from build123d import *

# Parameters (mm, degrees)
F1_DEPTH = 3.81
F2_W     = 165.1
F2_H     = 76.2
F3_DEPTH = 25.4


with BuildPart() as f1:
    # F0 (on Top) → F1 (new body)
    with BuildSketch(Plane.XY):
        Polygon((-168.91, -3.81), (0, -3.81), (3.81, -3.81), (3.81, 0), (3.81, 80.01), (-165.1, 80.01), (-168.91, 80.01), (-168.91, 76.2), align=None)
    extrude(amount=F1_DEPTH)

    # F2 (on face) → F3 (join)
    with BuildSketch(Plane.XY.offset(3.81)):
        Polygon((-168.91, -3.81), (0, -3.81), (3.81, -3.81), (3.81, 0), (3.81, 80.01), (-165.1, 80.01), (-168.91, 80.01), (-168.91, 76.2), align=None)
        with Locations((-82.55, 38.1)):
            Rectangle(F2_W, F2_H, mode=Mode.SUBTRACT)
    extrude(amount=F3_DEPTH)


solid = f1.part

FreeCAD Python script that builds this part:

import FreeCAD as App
import Part
import Sketcher
Q = App.Units.Quantity

doc = App.newDocument("Part")
body = doc.addObject("PartDesign::Body", "Body")

# Sketch on XY plane
sketch1 = doc.addObject("Sketcher::SketchObject", "Sketch")
body.addObject(sketch1)
sketch1.AttachmentSupport = (doc.XY_Plane, [""])
sketch1.MapMode = "FlatFace"
sketch1.addGeometry(Part.LineSegment(App.Vector(-168.91, -3.81, 0), App.Vector(3.81, -3.81, 0)), False)
sketch1.addGeometry(Part.LineSegment(App.Vector(3.81, -3.81, 0), App.Vector(3.81, 80.01, 0)), False)
sketch1.addGeometry(Part.LineSegment(App.Vector(3.81, 80.01, 0), App.Vector(-168.91, 80.01, 0)), False)
sketch1.addGeometry(Part.LineSegment(App.Vector(-168.91, 80.01, 0), App.Vector(-168.91, -3.81, 0)), False)
sketch1.addConstraint(Sketcher.Constraint("Coincident", 0, 2, 1, 1))
sketch1.addConstraint(Sketcher.Constraint("Coincident", 1, 2, 2, 1))
sketch1.addConstraint(Sketcher.Constraint("Coincident", 2, 2, 3, 1))
sketch1.addConstraint(Sketcher.Constraint("Coincident", 3, 2, 0, 1))
sketch1.addConstraint(Sketcher.Constraint("Horizontal", 0))
sketch1.addConstraint(Sketcher.Constraint("Vertical", 1))
sketch1.addConstraint(Sketcher.Constraint("Horizontal", 2))
sketch1.addConstraint(Sketcher.Constraint("Vertical", 3))
sketch1.addConstraint(Sketcher.Constraint("DistanceX", 0, 1, 0, 2, Q("6.8 in")))
sketch1.addConstraint(Sketcher.Constraint("DistanceY", 1, 1, 1, 2, Q("3.3 in")))
sketch1.addConstraint(Sketcher.Constraint("DistanceX", -1, 1, 0, 2, Q("0.15 in")))
sketch1.addConstraint(Sketcher.Constraint("DistanceY", 0, 2, -1, 1, Q("0.15 in")))
pad1 = doc.addObject("PartDesign::Pad", "Pad")
body.addObject(pad1)
pad1.Profile = sketch1
pad1.Length = Q("0.15 in")

# Sketch on XY plane
sketch2 = doc.addObject("Sketcher::SketchObject", "Sketch001")
body.addObject(sketch2)
sketch2.AttachmentSupport = (doc.XY_Plane, [""])
sketch2.MapMode = "FlatFace"
sketch2.AttachmentOffset = App.Placement(App.Vector(0, 0, 0.15 * 25.4), App.Rotation())
sketch2.addGeometry(Part.LineSegment(App.Vector(-168.91, -3.81, 0), App.Vector(3.81, -3.81, 0)), False)
sketch2.addGeometry(Part.LineSegment(App.Vector(3.81, -3.81, 0), App.Vector(3.81, 80.01, 0)), False)
sketch2.addGeometry(Part.LineSegment(App.Vector(3.81, 80.01, 0), App.Vector(-168.91, 80.01, 0)), False)
sketch2.addGeometry(Part.LineSegment(App.Vector(-168.91, 80.01, 0), App.Vector(-168.91, -3.81, 0)), False)
sketch2.addGeometry(Part.LineSegment(App.Vector(0, 0, 0), App.Vector(-165.1, 0, 0)), False)
sketch2.addGeometry(Part.LineSegment(App.Vector(-165.1, 0, 0), App.Vector(-165.1, 76.2, 0)), False)
sketch2.addGeometry(Part.LineSegment(App.Vector(-165.1, 76.2, 0), App.Vector(0, 76.2, 0)), False)
sketch2.addGeometry(Part.LineSegment(App.Vector(0, 76.2, 0), App.Vector(0, 0, 0)), False)
sketch2.addConstraint(Sketcher.Constraint("Coincident", 0, 2, 1, 1))
sketch2.addConstraint(Sketcher.Constraint("Coincident", 1, 2, 2, 1))
sketch2.addConstraint(Sketcher.Constraint("Coincident", 2, 2, 3, 1))
sketch2.addConstraint(Sketcher.Constraint("Coincident", 3, 2, 0, 1))
sketch2.addConstraint(Sketcher.Constraint("Coincident", 4, 2, 5, 1))
sketch2.addConstraint(Sketcher.Constraint("Coincident", 5, 2, 6, 1))
sketch2.addConstraint(Sketcher.Constraint("Coincident", 6, 2, 7, 1))
sketch2.addConstraint(Sketcher.Constraint("Coincident", 7, 2, 4, 1))
sketch2.addConstraint(Sketcher.Constraint("Horizontal", 0))
sketch2.addConstraint(Sketcher.Constraint("Vertical", 1))
sketch2.addConstraint(Sketcher.Constraint("Horizontal", 2))
sketch2.addConstraint(Sketcher.Constraint("Vertical", 3))
sketch2.addConstraint(Sketcher.Constraint("Horizontal", 4))
sketch2.addConstraint(Sketcher.Constraint("Vertical", 5))
sketch2.addConstraint(Sketcher.Constraint("Horizontal", 6))
sketch2.addConstraint(Sketcher.Constraint("Vertical", 7))
sketch2.addConstraint(Sketcher.Constraint("Coincident", 7, 2, -1, 1))
sketch2.addConstraint(Sketcher.Constraint("DistanceY", 5, 1, 5, 2, Q("3 in")))
sketch2.addConstraint(Sketcher.Constraint("DistanceX", 0, 1, 0, 2, Q("6.8 in")))
sketch2.addConstraint(Sketcher.Constraint("DistanceX", 4, 2, 4, 1, Q("6.5 in")))
sketch2.addConstraint(Sketcher.Constraint("DistanceY", 1, 1, 1, 2, Q("3.3 in")))
sketch2.addConstraint(Sketcher.Constraint("DistanceX", -1, 1, 0, 2, Q("0.15 in")))
sketch2.addConstraint(Sketcher.Constraint("DistanceY", 0, 2, -1, 1, Q("0.15 in")))
pad2 = doc.addObject("PartDesign::Pad", "Pad001")
body.addObject(pad2)
pad2.Profile = sketch2
pad2.Length = Q("1 in")

doc.recompute()
